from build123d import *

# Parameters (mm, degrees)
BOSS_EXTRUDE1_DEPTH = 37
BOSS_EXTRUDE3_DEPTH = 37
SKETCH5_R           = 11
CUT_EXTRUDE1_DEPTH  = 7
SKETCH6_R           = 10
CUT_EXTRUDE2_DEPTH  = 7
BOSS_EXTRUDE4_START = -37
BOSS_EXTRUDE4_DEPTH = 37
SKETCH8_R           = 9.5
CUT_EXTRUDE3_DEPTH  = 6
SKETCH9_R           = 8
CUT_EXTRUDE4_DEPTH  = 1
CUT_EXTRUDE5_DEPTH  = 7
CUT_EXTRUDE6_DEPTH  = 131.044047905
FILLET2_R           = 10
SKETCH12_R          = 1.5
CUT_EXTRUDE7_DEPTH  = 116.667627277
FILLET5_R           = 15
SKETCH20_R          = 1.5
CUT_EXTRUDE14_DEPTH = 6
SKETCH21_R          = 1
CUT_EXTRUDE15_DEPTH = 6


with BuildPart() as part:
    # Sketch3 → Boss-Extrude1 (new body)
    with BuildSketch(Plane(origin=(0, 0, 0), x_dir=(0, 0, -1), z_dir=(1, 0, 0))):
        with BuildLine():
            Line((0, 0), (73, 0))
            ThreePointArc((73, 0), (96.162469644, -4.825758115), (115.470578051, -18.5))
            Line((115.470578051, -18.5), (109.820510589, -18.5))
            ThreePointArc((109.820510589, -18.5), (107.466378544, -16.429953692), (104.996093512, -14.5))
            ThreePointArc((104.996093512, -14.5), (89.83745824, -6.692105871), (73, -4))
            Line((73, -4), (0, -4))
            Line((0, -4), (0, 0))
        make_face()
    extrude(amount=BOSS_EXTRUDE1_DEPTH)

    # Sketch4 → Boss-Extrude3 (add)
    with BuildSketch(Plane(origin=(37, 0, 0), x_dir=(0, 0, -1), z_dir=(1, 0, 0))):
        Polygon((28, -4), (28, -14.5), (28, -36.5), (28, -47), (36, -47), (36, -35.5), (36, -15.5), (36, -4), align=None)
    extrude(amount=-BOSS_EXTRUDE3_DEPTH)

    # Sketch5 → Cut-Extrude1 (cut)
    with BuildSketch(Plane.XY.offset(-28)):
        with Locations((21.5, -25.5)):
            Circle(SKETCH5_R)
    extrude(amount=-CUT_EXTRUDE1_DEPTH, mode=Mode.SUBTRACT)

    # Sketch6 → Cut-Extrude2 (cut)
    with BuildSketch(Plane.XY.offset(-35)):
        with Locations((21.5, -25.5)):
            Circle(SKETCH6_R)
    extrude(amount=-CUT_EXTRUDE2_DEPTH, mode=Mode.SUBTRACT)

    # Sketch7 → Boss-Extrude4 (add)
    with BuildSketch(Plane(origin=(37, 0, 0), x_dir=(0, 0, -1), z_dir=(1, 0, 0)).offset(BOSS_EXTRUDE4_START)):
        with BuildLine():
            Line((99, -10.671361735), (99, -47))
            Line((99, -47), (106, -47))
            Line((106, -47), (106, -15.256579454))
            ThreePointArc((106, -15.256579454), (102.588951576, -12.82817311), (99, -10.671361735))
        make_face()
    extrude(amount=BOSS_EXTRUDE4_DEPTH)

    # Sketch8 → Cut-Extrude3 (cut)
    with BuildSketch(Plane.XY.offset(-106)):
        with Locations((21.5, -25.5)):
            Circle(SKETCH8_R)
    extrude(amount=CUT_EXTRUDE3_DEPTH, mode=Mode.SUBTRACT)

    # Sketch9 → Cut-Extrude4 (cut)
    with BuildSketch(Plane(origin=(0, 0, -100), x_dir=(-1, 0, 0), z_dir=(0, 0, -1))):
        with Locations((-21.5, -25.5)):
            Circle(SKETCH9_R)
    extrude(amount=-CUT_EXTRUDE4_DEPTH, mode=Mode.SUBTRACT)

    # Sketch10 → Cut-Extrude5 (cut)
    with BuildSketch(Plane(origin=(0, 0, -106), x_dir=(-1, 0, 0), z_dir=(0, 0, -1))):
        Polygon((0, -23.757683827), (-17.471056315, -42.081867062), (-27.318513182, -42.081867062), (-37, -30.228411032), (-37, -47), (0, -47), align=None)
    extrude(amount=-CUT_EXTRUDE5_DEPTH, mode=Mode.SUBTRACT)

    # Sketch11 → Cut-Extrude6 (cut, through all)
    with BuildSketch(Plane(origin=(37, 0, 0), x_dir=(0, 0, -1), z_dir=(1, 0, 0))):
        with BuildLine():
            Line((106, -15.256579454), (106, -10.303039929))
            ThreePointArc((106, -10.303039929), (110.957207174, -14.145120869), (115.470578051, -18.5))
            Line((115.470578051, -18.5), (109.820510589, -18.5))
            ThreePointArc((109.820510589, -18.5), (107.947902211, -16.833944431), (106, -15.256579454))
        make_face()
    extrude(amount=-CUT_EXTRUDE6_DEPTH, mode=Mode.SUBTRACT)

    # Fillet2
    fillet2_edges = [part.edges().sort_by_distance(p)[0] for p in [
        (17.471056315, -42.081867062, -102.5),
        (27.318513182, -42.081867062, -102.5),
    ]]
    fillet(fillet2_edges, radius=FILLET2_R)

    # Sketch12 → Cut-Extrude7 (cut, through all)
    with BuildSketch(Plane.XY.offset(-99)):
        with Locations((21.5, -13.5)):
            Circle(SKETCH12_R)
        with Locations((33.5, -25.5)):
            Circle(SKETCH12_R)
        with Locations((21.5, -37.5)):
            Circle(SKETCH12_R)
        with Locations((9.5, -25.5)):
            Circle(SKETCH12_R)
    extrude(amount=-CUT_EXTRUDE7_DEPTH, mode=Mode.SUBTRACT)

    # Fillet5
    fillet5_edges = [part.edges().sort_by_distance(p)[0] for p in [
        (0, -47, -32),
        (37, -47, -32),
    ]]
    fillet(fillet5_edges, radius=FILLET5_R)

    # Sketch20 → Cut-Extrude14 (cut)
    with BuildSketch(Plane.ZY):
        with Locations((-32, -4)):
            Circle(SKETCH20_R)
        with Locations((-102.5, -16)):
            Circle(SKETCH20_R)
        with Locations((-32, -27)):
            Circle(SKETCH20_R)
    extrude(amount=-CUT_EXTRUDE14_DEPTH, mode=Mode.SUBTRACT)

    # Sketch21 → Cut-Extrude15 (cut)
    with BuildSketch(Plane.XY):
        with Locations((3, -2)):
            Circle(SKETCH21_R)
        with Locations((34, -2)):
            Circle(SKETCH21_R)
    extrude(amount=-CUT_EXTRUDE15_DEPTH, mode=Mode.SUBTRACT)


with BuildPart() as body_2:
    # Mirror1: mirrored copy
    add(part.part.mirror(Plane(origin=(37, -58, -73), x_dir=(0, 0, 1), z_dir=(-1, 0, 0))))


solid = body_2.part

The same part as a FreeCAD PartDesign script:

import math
import FreeCAD as App
import Part
import Sketcher

V = App.Vector


def edges_at(feature, points):
    """Names of the edges that pass closest to the given points."""
    edges = feature.Shape.Edges
    near = lambda p: min(range(len(edges)), key=lambda i: edges[i].distToShape(Part.Vertex(*p))[0])
    return sorted({f"Edge{near(p) + 1}" for p in points})

doc = App.newDocument("Part")
body = doc.addObject("PartDesign::Body", "Body")

# Sketch on YZ plane
sketch1 = doc.addObject("Sketcher::SketchObject", "Sketch")
body.addObject(sketch1)
sketch1.AttachmentSupport = (doc.YZ_Plane, [""])
sketch1.MapMode = "FlatFace"
sketch1.addGeometry([
    Part.LineSegment(V(0, -73, 0), V(0, 0, 0)),  # 0
    Part.LineSegment(V(0, 0, 0), V(-4, 0, 0)),  # 1
    Part.LineSegment(V(-4, 0, 0), V(-4, -73, 0)),  # 2
    Part.ArcOfCircle(Part.Circle(V(-58, -73, 0), V(0, 0, 1), 54), math.radians(-36), math.radians(0)),  # 3
    Part.ArcOfCircle(Part.Circle(V(-58, -73, 0), V(0, 0, 1), 54), math.radians(-42.99), math.radians(-36.34)),  # 4
    Part.LineSegment(V(-18.5, -109.8, 0), V(-18.5, -115.5, 0)),  # 5
    Part.ArcOfCircle(Part.Circle(V(-58, -73, 0), V(0, 0, 1), 58), math.radians(-47), math.radians(0)),  # 6
], False)
sketch1.addConstraint([
    Sketcher.Constraint("Coincident", 0, 2, 1, 1),
    Sketcher.Constraint("Coincident", 1, 2, 2, 1),
    Sketcher.Constraint("Tangent", 2, 2, 3, 2),
    Sketcher.Constraint("Tangent", 3, 1, 4, 2),
    Sketcher.Constraint("Coincident", 4, 1, 5, 1),
    Sketcher.Constraint("Coincident", 5, 2, 6, 1),
    Sketcher.Constraint("Tangent", 6, 2, 0, 1),
    Sketcher.Constraint("Vertical", 0),
    Sketcher.Constraint("Horizontal", 1),
    Sketcher.Constraint("Vertical", 2),
    Sketcher.Constraint("Vertical", 5),
    Sketcher.Constraint("Coincident", 0, 2, -1, 1),
    Sketcher.Constraint("Coincident", 6, 3, 3, 3),
    Sketcher.Constraint("Equal", 3, 4),
    Sketcher.Constraint("Radius", 3, 54.0),
    Sketcher.Constraint("Radius", 6, 58.0),
    Sketcher.Constraint("DistanceY", 0, 1, 0, 2, 73.0),
    Sketcher.Constraint("DistanceX", 4, 1, 3, 1, 4.0),
    Sketcher.Constraint("DistanceX", 3, 1, -1, 1, 14.5),
])
pad1 = doc.addObject("PartDesign::Pad", "Pad")
body.addObject(pad1)
pad1.Profile = sketch1
pad1.Length = 37

# Sketch on YZ plane
sketch2 = doc.addObject("Sketcher::SketchObject", "Sketch001")
body.addObject(sketch2)
sketch2.AttachmentSupport = (doc.YZ_Plane, [""])
sketch2.MapMode = "FlatFace"
sketch2.AttachmentOffset = App.Placement(V(0, 0, 37), App.Rotation())
sketch2.addGeometry([
    Part.LineSegment(V(-4, -28, 0), V(-47, -28, 0)),
    Part.LineSegment(V(-47, -28, 0), V(-47, -36, 0)),
    Part.LineSegment(V(-47, -36, 0), V(-4, -36, 0)),
    Part.LineSegment(V(-4, -36, 0), V(-4, -28, 0)),
], False)
sketch2.addConstraint([
    Sketcher.Constraint("Coincident", 0, 2, 1, 1),
    Sketcher.Constraint("Coincident", 1, 2, 2, 1),
    Sketcher.Constraint("Coincident", 2, 2, 3, 1),
    Sketcher.Constraint("Coincident", 3, 2, 0, 1),
    Sketcher.Constraint("Horizontal", 0),
    Sketcher.Constraint("Vertical", 1),
    Sketcher.Constraint("Horizontal", 2),
    Sketcher.Constraint("Vertical", 3),
    Sketcher.Constraint("DistanceX", 0, 2, 0, 1, 43.0),
    Sketcher.Constraint("DistanceY", 1, 2, 1, 1, 8.0),
    Sketcher.Constraint("DistanceX", 0, 2, -1, 1, 47.0),
    Sketcher.Constraint("DistanceY", 0, 2, -1, 1, 28.0),
])
pad2 = doc.addObject("PartDesign::Pad", "Pad001")
body.addObject(pad2)
pad2.Profile = sketch2
pad2.Length = 37
pad2.Reversed = True

# Sketch on XY plane
sketch3 = doc.addObject("Sketcher::SketchObject", "Sketch002")
body.addObject(sketch3)
sketch3.AttachmentSupport = (doc.XY_Plane, [""])
sketch3.MapMode = "FlatFace"
sketch3.AttachmentOffset = App.Placement(V(0, 0, -28), App.Rotation())
sketch3.addGeometry(Part.Circle(V(22, -26, 0), V(0, 0, 1), 11), False)
sketch3.addConstraint([
    Sketcher.Constraint("Diameter", 0, 22.0),
    Sketcher.Constraint("DistanceX", -1, 1, 0, 3, 21.5),
    Sketcher.Constraint("DistanceY", 0, 3, -1, 1, 25.5),
])
pocket1 = doc.addObject("PartDesign::Pocket", "Pocket")
body.addObject(pocket1)
pocket1.Profile = sketch3
pocket1.Length = 7

# Sketch on XY plane
sketch4 = doc.addObject("Sketcher::SketchObject", "Sketch003")
body.addObject(sketch4)
sketch4.AttachmentSupport = (doc.XY_Plane, [""])
sketch4.MapMode = "FlatFace"
sketch4.AttachmentOffset = App.Placement(V(0, 0, -35), App.Rotation())
sketch4.addGeometry(Part.Circle(V(22, -26, 0), V(0, 0, 1), 10), False)
sketch4.addConstraint([
    Sketcher.Constraint("Diameter", 0, 20.0),
    Sketcher.Constraint("DistanceX", -1, 1, 0, 3, 21.5),
    Sketcher.Constraint("DistanceY", 0, 3, -1, 1, 25.5),
])
pocket2 = doc.addObject("PartDesign::Pocket", "Pocket001")
body.addObject(pocket2)
pocket2.Profile = sketch4
pocket2.Length = 7

# Sketch on YZ plane
sketch5 = doc.addObject("Sketcher::SketchObject", "Sketch004")
body.addObject(sketch5)
sketch5.AttachmentSupport = (doc.YZ_Plane, [""])
sketch5.MapMode = "FlatFace"
sketch5.addGeometry([
    Part.LineSegment(V(-11, -99, 0), V(-47, -99, 0)),
    Part.LineSegment(V(-47, -99, 0), V(-47, -106, 0)),
    Part.LineSegment(V(-47, -106, 0), V(-15, -106, 0)),
    Part.ArcOfCircle(Part.Circle(V(-58, -73, 0), V(0, 0, 1), 54), math.radians(-37.67), math.radians(-28.78)),
], False)
sketch5.addConstraint([
    Sketcher.Constraint("Coincident", 0, 2, 1, 1),
    Sketcher.Constraint("Coincident", 1, 2, 2, 1),
    Sketcher.Constraint("Coincident", 2, 2, 3, 1),
    Sketcher.Constraint("Coincident", 3, 2, 0, 1),
    Sketcher.Constraint("Horizontal", 0),
    Sketcher.Constraint("Vertical", 1),
    Sketcher.Constraint("Horizontal", 2),
    Sketcher.Constraint("Radius", 3, 54.0),
    Sketcher.Constraint("DistanceY", 1, 2, 1, 1, 7.0),
    Sketcher.Constraint("DistanceX", 3, 3, -1, 1, 58.0),
    Sketcher.Constraint("DistanceY", 3, 3, -1, 1, 73.0),
    Sketcher.Constraint("DistanceX", 0, 2, -1, 1, 47.0),
    Sketcher.Constraint("DistanceY", 0, 2, -1, 1, 99.0),
])
pad3 = doc.addObject("PartDesign::Pad", "Pad002")
body.addObject(pad3)
pad3.Profile = sketch5
pad3.Length = 37

# Sketch on XY plane
sketch6 = doc.addObject("Sketcher::SketchObject", "Sketch005")
body.addObject(sketch6)
sketch6.AttachmentSupport = (doc.XY_Plane, [""])
sketch6.MapMode = "FlatFace"
sketch6.AttachmentOffset = App.Placement(V(0, 0, -106), App.Rotation())
sketch6.addGeometry(Part.Circle(V(22, -26, 0), V(0, 0, 1), 10), False)
sketch6.addConstraint([
    Sketcher.Constraint("Diameter", 0, 19.0),
    Sketcher.Constraint("DistanceX", -1, 1, 0, 3, 21.5),
    Sketcher.Constraint("DistanceY", 0, 3, -1, 1, 25.5),
])
pocket3 = doc.addObject("PartDesign::Pocket", "Pocket002")
body.addObject(pocket3)
pocket3.Profile = sketch6
pocket3.Length = 6
pocket3.Reversed = True

# Sketch on XY plane
sketch7 = doc.addObject("Sketcher::SketchObject", "Sketch006")
body.addObject(sketch7)
sketch7.AttachmentSupport = (doc.XY_Plane, [""])
sketch7.MapMode = "FlatFace"
sketch7.AttachmentOffset = App.Placement(V(0, 0, -100), App.Rotation())
sketch7.addGeometry(Part.Circle(V(22, -26, 0), V(0, 0, 1), 8), False)
sketch7.addConstraint([
    Sketcher.Constraint("Diameter", 0, 16.0),
    Sketcher.Constraint("DistanceX", -1, 1, 0, 3, 21.5),
    Sketcher.Constraint("DistanceY", 0, 3, -1, 1, 25.5),
])
pocket4 = doc.addObject("PartDesign::Pocket", "Pocket003")
body.addObject(pocket4)
pocket4.Profile = sketch7
pocket4.Length = 1
pocket4.Reversed = True

# Sketch on XY plane
sketch8 = doc.addObject("Sketcher::SketchObject", "Sketch007")
body.addObject(sketch8)
sketch8.AttachmentSupport = (doc.XY_Plane, [""])
sketch8.MapMode = "FlatFace"
sketch8.AttachmentOffset = App.Placement(V(0, 0, -106), App.Rotation())
sketch8.addGeometry([
    Part.LineSegment(V(0, -24, 0), V(17, -42, 0)),  # 0
    Part.LineSegment(V(17, -42, 0), V(27, -42, 0)),  # 1
    Part.LineSegment(V(27, -42, 0), V(37, -30, 0)),  # 2
    Part.LineSegment(V(37, -30, 0), V(37, -47, 0)),  # 3
    Part.LineSegment(V(37, -47, 0), V(0, -47, 0)),  # 4
    Part.LineSegment(V(0, -47, 0), V(0, -24, 0)),  # 5
], False)
sketch8.addConstraint([
    Sketcher.Constraint("Coincident", 0, 2, 1, 1),
    Sketcher.Constraint("Coincident", 1, 2, 2, 1),
    Sketcher.Constraint("Coincident", 2, 2, 3, 1),
    Sketcher.Constraint("Coincident", 3, 2, 4, 1),
    Sketcher.Constraint("Coincident", 4, 2, 5, 1),
    Sketcher.Constraint("Coincident", 5, 2, 0, 1),
    Sketcher.Constraint("Horizontal", 1),
    Sketcher.Constraint("Vertical", 3),
    Sketcher.Constraint("Horizontal", 4),
    Sketcher.Constraint("Vertical", 5),
    Sketcher.Constraint("PointOnObject", 4, 2, -2),
    Sketcher.Constraint("DistanceX", 4, 2, 4, 1, 37.0),
    Sketcher.Constraint("DistanceY", 3, 2, -1, 1, 47.0),
    Sketcher.Constraint("DistanceY", 3, 2, 3, 1, 16.771589),
    Sketcher.Constraint("DistanceX", 1, 1, 1, 2, 9.847457),
    Sketcher.Constraint("DistanceY", 5, 1, 5, 2, 23.242316),
    Sketcher.Constraint("Distance", 0, 25.318244),
    Sketcher.Constraint("Distance", 2, 15.304758),
])
pocket5 = doc.addObject("PartDesign::Pocket", "Pocket004")
body.addObject(pocket5)
pocket5.Profile = sketch8
pocket5.Length = 7
pocket5.Reversed = True

# Sketch on YZ plane
sketch9 = doc.addObject("Sketcher::SketchObject", "Sketch008")
body.addObject(sketch9)
sketch9.AttachmentSupport = (doc.YZ_Plane, [""])
sketch9.MapMode = "FlatFace"
sketch9.AttachmentOffset = App.Placement(V(0, 0, 37), App.Rotation())
sketch9.addGeometry([
    Part.LineSegment(V(-10.3, -106, 0), V(-15.3, -106, 0)),
    Part.ArcOfCircle(Part.Circle(V(-58, -73, 0), V(0, 0, 1), 54), math.radians(-42.99), math.radians(-37.67)),
    Part.LineSegment(V(-18.5, -109.8, 0), V(-18.5, -115.5, 0)),
    Part.ArcOfCircle(Part.Circle(V(-58, -73, 0), V(0, 0, 1), 58), math.radians(-47.08), math.radians(-34.68)),
], False)
sketch9.addConstraint([
    Sketcher.Constraint("Coincident", 0, 2, 1, 2),
    Sketcher.Constraint("Coincident", 1, 1, 2, 1),
    Sketcher.Constraint("Coincident", 2, 2, 3, 1),
    Sketcher.Constraint("Coincident", 3, 2, 0, 1),
    Sketcher.Constraint("Horizontal", 0),
    Sketcher.Constraint("Vertical", 2),
    Sketcher.Constraint("Coincident", 3, 3, 1, 3),
    Sketcher.Constraint("Radius", 1, 54.0),
    Sketcher.Constraint("Radius", 3, 58.0),
    Sketcher.Constraint("DistanceX", 1, 3, -1, 1, 58.0),
    Sketcher.Constraint("DistanceY", 1, 3, -1, 1, 73.0),
    Sketcher.Constraint("DistanceY", 0, 2, -1, 1, 106.0),
    Sketcher.Constraint("DistanceX", 1, 1, -1, 1, 18.5),
])
pocket6 = doc.addObject("PartDesign::Pocket", "Pocket005")
body.addObject(pocket6)
pocket6.Profile = sketch9
pocket6.Type = "ThroughAll"
doc.recompute()

fillet = doc.addObject("PartDesign::Fillet", "Fillet")
body.addObject(fillet)
fillet.Base = (pocket6, edges_at(pocket6, [(17.471, -42.082, -102.5), (27.319, -42.082, -102.5)]))
fillet.Radius = 10

# Sketch on XY plane
sketch10 = doc.addObject("Sketcher::SketchObject", "Sketch009")
body.addObject(sketch10)
sketch10.AttachmentSupport = (doc.XY_Plane, [""])
sketch10.MapMode = "FlatFace"
sketch10.AttachmentOffset = App.Placement(V(0, 0, -99), App.Rotation())
sketch10.addGeometry([
    Part.Circle(V(21.5, -13.5, 0), V(0, 0, 1), 1.5),
    Part.Circle(V(33.5, -25.5, 0), V(0, 0, 1), 1.5),
    Part.Circle(V(21.5, -37.5, 0), V(0, 0, 1), 1.5),
    Part.Circle(V(9.5, -25.5, 0), V(0, 0, 1), 1.5),
], False)
sketch10.addConstraint([
    Sketcher.Constraint("Equal", 0, 1),
    Sketcher.Constraint("Equal", 1, 2),
    Sketcher.Constraint("Equal", 2, 3),
    Sketcher.Constraint("Horizontal", 1, 3, 3, 3),
    Sketcher.Constraint("Vertical", 0, 3, 2, 3),
    Sketcher.Constraint("Diameter", 0, 3.0),
    Sketcher.Constraint("DistanceX", 0, 3, 1, 3, 12.0),
    Sketcher.Constraint("DistanceY", 1, 3, 0, 3, 12.0),
    Sketcher.Constraint("DistanceY", 2, 3, 1, 3, 12.0),
    Sketcher.Constraint("DistanceX", 3, 3, 0, 3, 12.0),
    Sketcher.Constraint("DistanceX", -1, 1, 0, 3, 21.5),
    Sketcher.Constraint("DistanceY", 0, 3, -1, 1, 13.5),
])
pocket7 = doc.addObject("PartDesign::Pocket", "Pocket006")
body.addObject(pocket7)
pocket7.Profile = sketch10
pocket7.Type = "ThroughAll"
doc.recompute()

fillet2 = doc.addObject("PartDesign::Fillet", "Fillet001")
body.addObject(fillet2)
fillet2.Base = (pocket7, edges_at(pocket7, [(0, -47, -32), (37, -47, -32)]))
fillet2.Radius = 15

# Sketch on YZ plane
sketch11 = doc.addObject("Sketcher::SketchObject", "Sketch010")
body.addObject(sketch11)
sketch11.AttachmentSupport = (doc.YZ_Plane, [""])
sketch11.MapMode = "FlatFace"
sketch11.addGeometry([
    Part.Circle(V(-4, -32, 0), V(0, 0, 1), 1.5),
    Part.Circle(V(-16, -102.5, 0), V(0, 0, 1), 1.5),
    Part.Circle(V(-27, -32, 0), V(0, 0, 1), 1.5),
], False)
sketch11.addConstraint([
    Sketcher.Constraint("Equal", 0, 1),
    Sketcher.Constraint("Equal", 1, 2),
    Sketcher.Constraint("Horizontal", 0, 3, 2, 3),
    Sketcher.Constraint("Diameter", 0, 3.0),
    Sketcher.Constraint("DistanceX", 0, 3, -1, 1, 4.0),
    Sketcher.Constraint("DistanceY", 0, 3, -1, 1, 32.0),
    Sketcher.Constraint("DistanceX", 1, 3, -1, 1, 16.0),
    Sketcher.Constraint("DistanceX", 2, 3, -1, 1, 27.0),
    Sketcher.Constraint("DistanceY", 1, 3, -1, 1, 102.5),
])
pocket8 = doc.addObject("PartDesign::Pocket", "Pocket007")
body.addObject(pocket8)
pocket8.Profile = sketch11
pocket8.Length = 6
pocket8.Reversed = True

# Sketch on XY plane
sketch12 = doc.addObject("Sketcher::SketchObject", "Sketch011")
body.addObject(sketch12)
sketch12.AttachmentSupport = (doc.XY_Plane, [""])
sketch12.MapMode = "FlatFace"
sketch12.addGeometry([
    Part.Circle(V(3, -2, 0), V(0, 0, 1), 1),
    Part.Circle(V(34, -2, 0), V(0, 0, 1), 1),
], False)
sketch12.addConstraint([
    Sketcher.Constraint("Equal", 0, 1),
    Sketcher.Constraint("Horizontal", 0, 3, 1, 3),
    Sketcher.Constraint("Diameter", 0, 2.0),
    Sketcher.Constraint("DistanceX", -1, 1, 0, 3, 3.0),
    Sketcher.Constraint("DistanceY", 0, 3, -1, 1, 2.0),
    Sketcher.Constraint("DistanceX", -1, 1, 1, 3, 34.0),
])
pocket9 = doc.addObject("PartDesign::Pocket", "Pocket008")
body.addObject(pocket9)
pocket9.Profile = sketch12
pocket9.Length = 6
body2 = doc.addObject("PartDesign::Body", "Body001")
doc.recompute()

mirroring = doc.addObject("Part::Mirroring", "Mirroring")
mirroring.Source = body
mirroring.Base = V(37, -58, -73)
mirroring.Normal = V(-1, 0, 0)
body2.BaseFeature = mirroring
doc.recompute()
body.Visibility = False
mirroring.Visibility = False

doc.recompute()
